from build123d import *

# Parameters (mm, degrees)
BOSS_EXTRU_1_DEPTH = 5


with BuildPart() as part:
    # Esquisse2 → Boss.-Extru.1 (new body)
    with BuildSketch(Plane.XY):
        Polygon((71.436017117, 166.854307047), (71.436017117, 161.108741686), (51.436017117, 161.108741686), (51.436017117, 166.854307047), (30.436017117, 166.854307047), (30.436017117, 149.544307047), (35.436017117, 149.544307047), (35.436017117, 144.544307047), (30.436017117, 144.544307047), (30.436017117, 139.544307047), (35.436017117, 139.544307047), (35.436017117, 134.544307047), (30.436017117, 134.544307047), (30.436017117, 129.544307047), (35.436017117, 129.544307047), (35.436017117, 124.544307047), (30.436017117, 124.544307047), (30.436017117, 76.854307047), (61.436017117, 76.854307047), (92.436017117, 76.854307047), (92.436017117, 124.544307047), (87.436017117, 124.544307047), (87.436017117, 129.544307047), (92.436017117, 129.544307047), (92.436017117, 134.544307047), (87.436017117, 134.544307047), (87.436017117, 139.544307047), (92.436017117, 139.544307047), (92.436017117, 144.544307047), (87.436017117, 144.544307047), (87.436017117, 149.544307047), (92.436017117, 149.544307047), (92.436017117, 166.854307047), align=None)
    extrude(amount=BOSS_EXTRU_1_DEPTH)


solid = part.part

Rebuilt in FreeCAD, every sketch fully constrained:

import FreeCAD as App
import Part
import Sketcher

doc = App.newDocument("Part")
body = doc.addObject("PartDesign::Body", "Body")

# Sketch on XY plane
sketch1 = body.newObject("Sketcher::SketchObject", "Sketch")
sketch1.AttachmentSupport = (doc.getObject("XY_Plane"), [""])
sketch1.MapMode = "FlatFace"
sketch1.addGeometry([
    Part.LineSegment(App.Vector(71.4, 166.9, 0), App.Vector(71.4, 161.1, 0)),  # 0
    Part.LineSegment(App.Vector(71.4, 161.1, 0), App.Vector(51.4, 161.1, 0)),  # 1
    Part.LineSegment(App.Vector(51.4, 161.1, 0), App.Vector(51.4, 166.9, 0)),  # 2
    Part.LineSegment(App.Vector(51.4, 166.9, 0), App.Vector(30.4, 166.9, 0)),  # 3
    Part.LineSegment(App.Vector(30.4, 166.9, 0), App.Vector(30.4, 149.5, 0)),  # 4
    Part.LineSegment(App.Vector(30.4, 149.5, 0), App.Vector(35.4, 149.5, 0)),  # 5
    Part.LineSegment(App.Vector(35.4, 149.5, 0), App.Vector(35.4, 144.5, 0)),  # 6
    Part.LineSegment(App.Vector(35.4, 144.5, 0), App.Vector(30.4, 144.5, 0)),  # 7
    Part.LineSegment(App.Vector(30.4, 144.5, 0), App.Vector(30.4, 139.5, 0)),  # 8
    Part.LineSegment(App.Vector(30.4, 139.5, 0), App.Vector(35.4, 139.5, 0)),  # 9
    Part.LineSegment(App.Vector(35.4, 139.5, 0), App.Vector(35.4, 134.5, 0)),  # 10
    Part.LineSegment(App.Vector(35.4, 134.5, 0), App.Vector(30.4, 134.5, 0)),  # 11
    Part.LineSegment(App.Vector(30.4, 134.5, 0), App.Vector(30.4, 129.5, 0)),  # 12
    Part.LineSegment(App.Vector(30.4, 129.5, 0), App.Vector(35.4, 129.5, 0)),  # 13
    Part.LineSegment(App.Vector(35.4, 129.5, 0), App.Vector(35.4, 124.5, 0)),  # 14
    Part.LineSegment(App.Vector(35.4, 124.5, 0), App.Vector(30.4, 124.5, 0)),  # 15
    Part.LineSegment(App.Vector(30.4, 124.5, 0), App.Vector(30.4, 76.9, 0)),  # 16
    Part.LineSegment(App.Vector(30.4, 76.9, 0), App.Vector(92.4, 76.9, 0)),  # 17
    Part.LineSegment(App.Vector(92.4, 76.9, 0), App.Vector(92.4, 124.5, 0)),  # 18
    Part.LineSegment(App.Vector(92.4, 124.5, 0), App.Vector(87.4, 124.5, 0)),  # 19
    Part.LineSegment(App.Vector(87.4, 124.5, 0), App.Vector(87.4, 129.5, 0)),  # 20
    Part.LineSegment(App.Vector(87.4, 129.5, 0), App.Vector(92.4, 129.5, 0)),  # 21
    Part.LineSegment(App.Vector(92.4, 129.5, 0), App.Vector(92.4, 134.5, 0)),  # 22
    Part.LineSegment(App.Vector(92.4, 134.5, 0), App.Vector(87.4, 134.5, 0)),  # 23
    Part.LineSegment(App.Vector(87.4, 134.5, 0), App.Vector(87.4, 139.5, 0)),  # 24
    Part.LineSegment(App.Vector(87.4, 139.5, 0), App.Vector(92.4, 139.5, 0)),  # 25
    Part.LineSegment(App.Vector(92.4, 139.5, 0), App.Vector(92.4, 144.5, 0)),  # 26
    Part.LineSegment(App.Vector(92.4, 144.5, 0), App.Vector(87.4, 144.5, 0)),  # 27
    Part.LineSegment(App.Vector(87.4, 144.5, 0), App.Vector(87.4, 149.5, 0)),  # 28
    Part.LineSegment(App.Vector(87.4, 149.5, 0), App.Vector(92.4, 149.5, 0)),  # 29
    Part.LineSegment(App.Vector(92.4, 149.5, 0), App.Vector(92.4, 166.9, 0)),  # 30
    Part.LineSegment(App.Vector(92.4, 166.9, 0), App.Vector(71.4, 166.9, 0)),  # 31
], False)
sketch1.addConstraint([
    Sketcher.Constraint("Coincident", 0, 2, 1, 1),
    Sketcher.Constraint("Coincident", 1, 2, 2, 1),
    Sketcher.Constraint("Coincident", 2, 2, 3, 1),
    Sketcher.Constraint("Coincident", 3, 2, 4, 1),
    Sketcher.Constraint("Coincident", 4, 2, 5, 1),
    Sketcher.Constraint("Coincident", 5, 2, 6, 1),
    Sketcher.Constraint("Coincident", 6, 2, 7, 1),
    Sketcher.Constraint("Coincident", 7, 2, 8, 1),
    Sketcher.Constraint("Coincident", 8, 2, 9, 1),
    Sketcher.Constraint("Coincident", 9, 2, 10, 1),
    Sketcher.Constraint("Coincident", 10, 2, 11, 1),
    Sketcher.Constraint("Coincident", 11, 2, 12, 1),
    Sketcher.Constraint("Coincident", 12, 2, 13, 1),
    Sketcher.Constraint("Coincident", 13, 2, 14, 1),
    Sketcher.Constraint("Coincident", 14, 2, 15, 1),
    Sketcher.Constraint("Coincident", 15, 2, 16, 1),
    Sketcher.Constraint("Coincident", 16, 2, 17, 1),
    Sketcher.Constraint("Coincident", 17, 2, 18, 1),
    Sketcher.Constraint("Coincident", 18, 2, 19, 1),
    Sketcher.Constraint("Coincident", 19, 2, 20, 1),
    Sketcher.Constraint("Coincident", 20, 2, 21, 1),
    Sketcher.Constraint("Coincident", 21, 2, 22, 1),
    Sketcher.Constraint("Coincident", 22, 2, 23, 1),
    Sketcher.Constraint("Coincident", 23, 2, 24, 1),
    Sketcher.Constraint("Coincident", 24, 2, 25, 1),
    Sketcher.Constraint("Coincident", 25, 2, 26, 1),
    Sketcher.Constraint("Coincident", 26, 2, 27, 1),
    Sketcher.Constraint("Coincident", 27, 2, 28, 1),
    Sketcher.Constraint("Coincident", 28, 2, 29, 1),
    Sketcher.Constraint("Coincident", 29, 2, 30, 1),
    Sketcher.Constraint("Coincident", 30, 2, 31, 1),
    Sketcher.Constraint("Coincident", 31, 2, 0, 1),
    Sketcher.Constraint("Vertical", 0),
    Sketcher.Constraint("Horizontal", 1),
    Sketcher.Constraint("Vertical", 2),
    Sketcher.Constraint("Horizontal", 3),
    Sketcher.Constraint("Vertical", 4),
    Sketcher.Constraint("Horizontal", 5),
    Sketcher.Constraint("Vertical", 6),
    Sketcher.Constraint("Horizontal", 7),
    Sketcher.Constraint("Vertical", 8),
    Sketcher.Constraint("Horizontal", 9),
    Sketcher.Constraint("Vertical", 10),
    Sketcher.Constraint("Horizontal", 11),
    Sketcher.Constraint("Vertical", 12),
    Sketcher.Constraint("Horizontal", 13),
    Sketcher.Constraint("Vertical", 14),
    Sketcher.Constraint("Horizontal", 15),
    Sketcher.Constraint("Vertical", 16),
    Sketcher.Constraint("Horizontal", 17),
    Sketcher.Constraint("Vertical", 18),
    Sketcher.Constraint("Horizontal", 19),
    Sketcher.Constraint("Vertical", 20),
    Sketcher.Constraint("Horizontal", 21),
    Sketcher.Constraint("Vertical", 22),
    Sketcher.Constraint("Horizontal", 23),
    Sketcher.Constraint("Vertical", 24),
    Sketcher.Constraint("Horizontal", 25),
    Sketcher.Constraint("Vertical", 26),
    Sketcher.Constraint("Horizontal", 27),
    Sketcher.Constraint("Vertical", 28),
    Sketcher.Constraint("Horizontal", 29),
    Sketcher.Constraint("Vertical", 30),
    Sketcher.Constraint("Horizontal", 31),
    Sketcher.Constraint("Horizontal", 15, 2, 18, 2),
    Sketcher.Constraint("Horizontal", 13, 2, 20, 2),
    Sketcher.Constraint("Horizontal", 11, 2, 22, 2),
    Sketcher.Constraint("Horizontal", 9, 2, 24, 2),
    Sketcher.Constraint("Horizontal", 7, 2, 26, 2),
    Sketcher.Constraint("Horizontal", 5, 2, 28, 2),
    Sketcher.Constraint("Horizontal", 3, 2, 30, 2),
    Sketcher.Constraint("Vertical", 4, 2, 7, 2),
    Sketcher.Constraint("Vertical", 6, 2, 9, 2),
    Sketcher.Constraint("Vertical", 8, 2, 11, 2),
    Sketcher.Constraint("Vertical", 10, 2, 13, 2),
    Sketcher.Constraint("Vertical", 12, 2, 15, 2),
    Sketcher.Constraint("Vertical", 18, 2, 21, 2),
    Sketcher.Constraint("Vertical", 20, 2, 23, 2),
    Sketcher.Constraint("Vertical", 22, 2, 25, 2),
    Sketcher.Constraint("Vertical", 24, 2, 27, 2),
    Sketcher.Constraint("Vertical", 26, 2, 29, 2),
    Sketcher.Constraint("Equal", 15, 19),
    Sketcher.Constraint("Equal", 3, 31),
    Sketcher.Constraint("Equal", 29, 6),
    Sketcher.Constraint("Equal", 6, 8),
    Sketcher.Constraint("Equal", 8, 10),
    Sketcher.Constraint("Equal", 10, 12),
    Sketcher.Constraint("Equal", 12, 14),
    Sketcher.Constraint("DistanceX", 1, 2, 1, 1, 20.0),
    Sketcher.Constraint("DistanceX", 3, 2, 3, 1, 21.0),
    Sketcher.Constraint("DistanceX", 5, 1, 5, 2, 5.0),
    Sketcher.Constraint("DistanceY", 4, 2, 4, 1, 17.31),
    Sketcher.Constraint("DistanceY", 16, 2, 16, 1, 47.69),
    Sketcher.Constraint("DistanceY", 0, 2, 0, 1, 5.745565),
    Sketcher.Constraint("DistanceY", -1, 1, 0, 2, 161.108742),
    Sketcher.Constraint("DistanceX", -1, 1, 0, 2, 71.436017),
])
pad1 = body.newObject("PartDesign::Pad", "Pad")
pad1.Profile = sketch1
pad1.Length = 5

doc.recompute()
